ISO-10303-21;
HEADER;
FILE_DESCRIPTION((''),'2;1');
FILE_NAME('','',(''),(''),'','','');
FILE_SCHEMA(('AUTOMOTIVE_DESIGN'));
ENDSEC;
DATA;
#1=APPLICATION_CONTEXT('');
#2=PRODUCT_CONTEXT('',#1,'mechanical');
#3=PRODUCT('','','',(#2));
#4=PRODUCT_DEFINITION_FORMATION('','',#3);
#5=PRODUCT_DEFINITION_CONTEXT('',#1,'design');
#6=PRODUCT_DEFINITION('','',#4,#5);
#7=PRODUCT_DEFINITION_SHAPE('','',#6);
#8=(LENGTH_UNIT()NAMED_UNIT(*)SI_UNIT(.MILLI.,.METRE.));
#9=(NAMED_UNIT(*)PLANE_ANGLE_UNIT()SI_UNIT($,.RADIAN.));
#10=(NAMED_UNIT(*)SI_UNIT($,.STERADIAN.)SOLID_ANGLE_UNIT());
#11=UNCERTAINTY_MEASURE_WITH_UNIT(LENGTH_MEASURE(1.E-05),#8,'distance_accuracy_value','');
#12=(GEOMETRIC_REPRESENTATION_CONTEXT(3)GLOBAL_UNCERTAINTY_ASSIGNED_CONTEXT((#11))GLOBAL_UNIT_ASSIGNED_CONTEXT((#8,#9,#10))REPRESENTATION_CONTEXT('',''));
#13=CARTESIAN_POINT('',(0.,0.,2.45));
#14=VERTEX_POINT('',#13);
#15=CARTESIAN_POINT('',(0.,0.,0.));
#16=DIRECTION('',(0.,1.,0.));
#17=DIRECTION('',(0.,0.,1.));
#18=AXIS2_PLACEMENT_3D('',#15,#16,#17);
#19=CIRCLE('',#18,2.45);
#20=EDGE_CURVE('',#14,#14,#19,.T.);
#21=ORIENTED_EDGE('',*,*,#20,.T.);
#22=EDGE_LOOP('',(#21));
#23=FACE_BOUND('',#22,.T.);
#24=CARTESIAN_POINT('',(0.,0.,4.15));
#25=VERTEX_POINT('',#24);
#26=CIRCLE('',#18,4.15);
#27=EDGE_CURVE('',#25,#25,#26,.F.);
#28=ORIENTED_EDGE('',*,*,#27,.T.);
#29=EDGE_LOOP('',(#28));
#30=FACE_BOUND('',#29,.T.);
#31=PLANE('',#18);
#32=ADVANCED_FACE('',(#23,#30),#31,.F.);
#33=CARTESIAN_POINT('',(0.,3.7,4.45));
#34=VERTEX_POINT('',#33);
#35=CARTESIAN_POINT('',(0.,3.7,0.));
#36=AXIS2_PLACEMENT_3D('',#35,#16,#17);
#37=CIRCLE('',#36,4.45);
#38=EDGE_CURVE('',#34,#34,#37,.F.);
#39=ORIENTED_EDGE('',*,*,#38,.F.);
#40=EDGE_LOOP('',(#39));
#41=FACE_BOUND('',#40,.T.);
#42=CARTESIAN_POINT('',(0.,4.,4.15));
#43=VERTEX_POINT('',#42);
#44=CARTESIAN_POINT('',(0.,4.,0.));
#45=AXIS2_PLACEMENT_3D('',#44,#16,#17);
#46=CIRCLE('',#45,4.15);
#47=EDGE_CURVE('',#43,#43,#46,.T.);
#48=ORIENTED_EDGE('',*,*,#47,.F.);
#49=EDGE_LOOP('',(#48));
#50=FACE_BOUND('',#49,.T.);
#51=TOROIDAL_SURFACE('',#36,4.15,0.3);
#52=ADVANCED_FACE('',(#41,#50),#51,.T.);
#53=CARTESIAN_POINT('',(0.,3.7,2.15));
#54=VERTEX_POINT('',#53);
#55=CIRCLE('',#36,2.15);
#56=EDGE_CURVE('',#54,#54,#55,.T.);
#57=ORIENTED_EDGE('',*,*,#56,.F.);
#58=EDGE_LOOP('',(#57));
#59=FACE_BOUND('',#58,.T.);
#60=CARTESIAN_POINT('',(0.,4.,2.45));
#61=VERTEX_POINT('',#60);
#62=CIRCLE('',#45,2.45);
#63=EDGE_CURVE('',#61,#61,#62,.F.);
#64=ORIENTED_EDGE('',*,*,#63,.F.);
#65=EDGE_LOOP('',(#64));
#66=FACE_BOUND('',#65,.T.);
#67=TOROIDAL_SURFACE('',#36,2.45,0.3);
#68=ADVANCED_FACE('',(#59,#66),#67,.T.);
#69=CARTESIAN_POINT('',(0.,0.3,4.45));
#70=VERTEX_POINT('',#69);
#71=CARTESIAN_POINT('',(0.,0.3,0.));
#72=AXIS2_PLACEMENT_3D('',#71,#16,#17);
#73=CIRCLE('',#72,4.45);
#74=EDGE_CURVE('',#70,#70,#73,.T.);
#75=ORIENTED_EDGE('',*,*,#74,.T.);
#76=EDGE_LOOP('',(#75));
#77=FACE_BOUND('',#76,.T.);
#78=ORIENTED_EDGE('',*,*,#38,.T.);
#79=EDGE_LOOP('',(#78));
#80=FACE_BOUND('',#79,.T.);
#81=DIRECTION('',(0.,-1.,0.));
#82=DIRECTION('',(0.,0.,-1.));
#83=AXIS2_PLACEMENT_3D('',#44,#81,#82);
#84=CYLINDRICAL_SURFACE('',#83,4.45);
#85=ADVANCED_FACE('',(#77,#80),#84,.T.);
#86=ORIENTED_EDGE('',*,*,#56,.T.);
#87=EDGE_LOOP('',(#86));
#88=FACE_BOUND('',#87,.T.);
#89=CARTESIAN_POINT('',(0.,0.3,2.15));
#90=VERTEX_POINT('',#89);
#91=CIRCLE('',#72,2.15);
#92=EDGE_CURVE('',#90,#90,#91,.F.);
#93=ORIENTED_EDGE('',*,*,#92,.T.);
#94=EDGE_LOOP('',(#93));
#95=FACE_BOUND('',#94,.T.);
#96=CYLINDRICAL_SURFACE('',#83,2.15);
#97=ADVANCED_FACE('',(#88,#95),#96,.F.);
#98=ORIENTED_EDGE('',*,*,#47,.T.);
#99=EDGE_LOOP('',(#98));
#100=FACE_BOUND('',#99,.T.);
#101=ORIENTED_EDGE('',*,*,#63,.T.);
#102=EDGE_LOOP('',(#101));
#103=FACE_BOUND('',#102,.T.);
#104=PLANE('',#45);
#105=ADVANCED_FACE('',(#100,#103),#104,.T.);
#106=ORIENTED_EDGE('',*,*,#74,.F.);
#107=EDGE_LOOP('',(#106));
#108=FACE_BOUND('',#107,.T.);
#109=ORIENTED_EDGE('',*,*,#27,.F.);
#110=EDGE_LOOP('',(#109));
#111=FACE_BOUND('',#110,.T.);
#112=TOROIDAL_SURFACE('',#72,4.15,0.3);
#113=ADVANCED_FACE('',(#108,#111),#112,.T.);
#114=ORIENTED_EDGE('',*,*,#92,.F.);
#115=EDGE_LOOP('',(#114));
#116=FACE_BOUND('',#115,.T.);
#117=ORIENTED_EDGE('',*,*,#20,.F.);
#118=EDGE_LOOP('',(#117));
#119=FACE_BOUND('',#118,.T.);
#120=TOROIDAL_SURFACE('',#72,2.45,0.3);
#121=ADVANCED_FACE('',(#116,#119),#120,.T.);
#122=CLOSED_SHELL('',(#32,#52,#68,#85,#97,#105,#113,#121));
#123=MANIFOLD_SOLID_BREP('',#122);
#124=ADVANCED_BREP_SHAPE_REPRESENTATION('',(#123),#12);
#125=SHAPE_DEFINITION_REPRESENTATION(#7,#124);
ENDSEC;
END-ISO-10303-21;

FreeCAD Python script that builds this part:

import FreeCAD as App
import Part
import Sketcher
from FreeCAD import Vector


def edges_at(feature, points):
    """Names of the edges that pass closest to the given points."""
    edges = feature.Shape.Edges
    near = lambda p: min(range(len(edges)), key=lambda i: edges[i].distToShape(Part.Vertex(*p))[0])
    return sorted({f"Edge{near(p) + 1}" for p in points})

doc = App.newDocument("Part")
body = doc.addObject("PartDesign::Body", "Body")

# Sketch on XZ plane
sketch1 = body.newObject("Sketcher::SketchObject", "Sketch")
sketch1.AttachmentSupport = (doc.getObject("XZ_Plane"), [""])
sketch1.MapMode = "FlatFace"
sketch1.addGeometry(Part.Circle(Vector(0, 0, 0), Vector(0, 0, 1), 4.45), False)
sketch1.addGeometry(Part.Circle(Vector(0, 0, 0), Vector(0, 0, 1), 2.15), False)
sketch1.addConstraint(Sketcher.Constraint("Coincident", 0, 3, -1, 1))
sketch1.addConstraint(Sketcher.Constraint("Coincident", 1, 3, -1, 1))
sketch1.addConstraint(Sketcher.Constraint("Diameter", 0, 8.9))
sketch1.addConstraint(Sketcher.Constraint("Diameter", 1, 4.3))
pad1 = body.newObject("PartDesign::Pad", "Pad")
pad1.Profile = sketch1
pad1.Length = 4
pad1.Reversed = True
doc.recompute()

fillet = body.newObject("PartDesign::Fillet", "Fillet")
fillet.Base = (pad1, edges_at(pad1, [
    (0, 0, -4.45),
    (0, 4, -4.45),
    (0, 0, -2.15),
    (0, 4, -2.15),
]))
fillet.Radius = 0.3

doc.recompute()
